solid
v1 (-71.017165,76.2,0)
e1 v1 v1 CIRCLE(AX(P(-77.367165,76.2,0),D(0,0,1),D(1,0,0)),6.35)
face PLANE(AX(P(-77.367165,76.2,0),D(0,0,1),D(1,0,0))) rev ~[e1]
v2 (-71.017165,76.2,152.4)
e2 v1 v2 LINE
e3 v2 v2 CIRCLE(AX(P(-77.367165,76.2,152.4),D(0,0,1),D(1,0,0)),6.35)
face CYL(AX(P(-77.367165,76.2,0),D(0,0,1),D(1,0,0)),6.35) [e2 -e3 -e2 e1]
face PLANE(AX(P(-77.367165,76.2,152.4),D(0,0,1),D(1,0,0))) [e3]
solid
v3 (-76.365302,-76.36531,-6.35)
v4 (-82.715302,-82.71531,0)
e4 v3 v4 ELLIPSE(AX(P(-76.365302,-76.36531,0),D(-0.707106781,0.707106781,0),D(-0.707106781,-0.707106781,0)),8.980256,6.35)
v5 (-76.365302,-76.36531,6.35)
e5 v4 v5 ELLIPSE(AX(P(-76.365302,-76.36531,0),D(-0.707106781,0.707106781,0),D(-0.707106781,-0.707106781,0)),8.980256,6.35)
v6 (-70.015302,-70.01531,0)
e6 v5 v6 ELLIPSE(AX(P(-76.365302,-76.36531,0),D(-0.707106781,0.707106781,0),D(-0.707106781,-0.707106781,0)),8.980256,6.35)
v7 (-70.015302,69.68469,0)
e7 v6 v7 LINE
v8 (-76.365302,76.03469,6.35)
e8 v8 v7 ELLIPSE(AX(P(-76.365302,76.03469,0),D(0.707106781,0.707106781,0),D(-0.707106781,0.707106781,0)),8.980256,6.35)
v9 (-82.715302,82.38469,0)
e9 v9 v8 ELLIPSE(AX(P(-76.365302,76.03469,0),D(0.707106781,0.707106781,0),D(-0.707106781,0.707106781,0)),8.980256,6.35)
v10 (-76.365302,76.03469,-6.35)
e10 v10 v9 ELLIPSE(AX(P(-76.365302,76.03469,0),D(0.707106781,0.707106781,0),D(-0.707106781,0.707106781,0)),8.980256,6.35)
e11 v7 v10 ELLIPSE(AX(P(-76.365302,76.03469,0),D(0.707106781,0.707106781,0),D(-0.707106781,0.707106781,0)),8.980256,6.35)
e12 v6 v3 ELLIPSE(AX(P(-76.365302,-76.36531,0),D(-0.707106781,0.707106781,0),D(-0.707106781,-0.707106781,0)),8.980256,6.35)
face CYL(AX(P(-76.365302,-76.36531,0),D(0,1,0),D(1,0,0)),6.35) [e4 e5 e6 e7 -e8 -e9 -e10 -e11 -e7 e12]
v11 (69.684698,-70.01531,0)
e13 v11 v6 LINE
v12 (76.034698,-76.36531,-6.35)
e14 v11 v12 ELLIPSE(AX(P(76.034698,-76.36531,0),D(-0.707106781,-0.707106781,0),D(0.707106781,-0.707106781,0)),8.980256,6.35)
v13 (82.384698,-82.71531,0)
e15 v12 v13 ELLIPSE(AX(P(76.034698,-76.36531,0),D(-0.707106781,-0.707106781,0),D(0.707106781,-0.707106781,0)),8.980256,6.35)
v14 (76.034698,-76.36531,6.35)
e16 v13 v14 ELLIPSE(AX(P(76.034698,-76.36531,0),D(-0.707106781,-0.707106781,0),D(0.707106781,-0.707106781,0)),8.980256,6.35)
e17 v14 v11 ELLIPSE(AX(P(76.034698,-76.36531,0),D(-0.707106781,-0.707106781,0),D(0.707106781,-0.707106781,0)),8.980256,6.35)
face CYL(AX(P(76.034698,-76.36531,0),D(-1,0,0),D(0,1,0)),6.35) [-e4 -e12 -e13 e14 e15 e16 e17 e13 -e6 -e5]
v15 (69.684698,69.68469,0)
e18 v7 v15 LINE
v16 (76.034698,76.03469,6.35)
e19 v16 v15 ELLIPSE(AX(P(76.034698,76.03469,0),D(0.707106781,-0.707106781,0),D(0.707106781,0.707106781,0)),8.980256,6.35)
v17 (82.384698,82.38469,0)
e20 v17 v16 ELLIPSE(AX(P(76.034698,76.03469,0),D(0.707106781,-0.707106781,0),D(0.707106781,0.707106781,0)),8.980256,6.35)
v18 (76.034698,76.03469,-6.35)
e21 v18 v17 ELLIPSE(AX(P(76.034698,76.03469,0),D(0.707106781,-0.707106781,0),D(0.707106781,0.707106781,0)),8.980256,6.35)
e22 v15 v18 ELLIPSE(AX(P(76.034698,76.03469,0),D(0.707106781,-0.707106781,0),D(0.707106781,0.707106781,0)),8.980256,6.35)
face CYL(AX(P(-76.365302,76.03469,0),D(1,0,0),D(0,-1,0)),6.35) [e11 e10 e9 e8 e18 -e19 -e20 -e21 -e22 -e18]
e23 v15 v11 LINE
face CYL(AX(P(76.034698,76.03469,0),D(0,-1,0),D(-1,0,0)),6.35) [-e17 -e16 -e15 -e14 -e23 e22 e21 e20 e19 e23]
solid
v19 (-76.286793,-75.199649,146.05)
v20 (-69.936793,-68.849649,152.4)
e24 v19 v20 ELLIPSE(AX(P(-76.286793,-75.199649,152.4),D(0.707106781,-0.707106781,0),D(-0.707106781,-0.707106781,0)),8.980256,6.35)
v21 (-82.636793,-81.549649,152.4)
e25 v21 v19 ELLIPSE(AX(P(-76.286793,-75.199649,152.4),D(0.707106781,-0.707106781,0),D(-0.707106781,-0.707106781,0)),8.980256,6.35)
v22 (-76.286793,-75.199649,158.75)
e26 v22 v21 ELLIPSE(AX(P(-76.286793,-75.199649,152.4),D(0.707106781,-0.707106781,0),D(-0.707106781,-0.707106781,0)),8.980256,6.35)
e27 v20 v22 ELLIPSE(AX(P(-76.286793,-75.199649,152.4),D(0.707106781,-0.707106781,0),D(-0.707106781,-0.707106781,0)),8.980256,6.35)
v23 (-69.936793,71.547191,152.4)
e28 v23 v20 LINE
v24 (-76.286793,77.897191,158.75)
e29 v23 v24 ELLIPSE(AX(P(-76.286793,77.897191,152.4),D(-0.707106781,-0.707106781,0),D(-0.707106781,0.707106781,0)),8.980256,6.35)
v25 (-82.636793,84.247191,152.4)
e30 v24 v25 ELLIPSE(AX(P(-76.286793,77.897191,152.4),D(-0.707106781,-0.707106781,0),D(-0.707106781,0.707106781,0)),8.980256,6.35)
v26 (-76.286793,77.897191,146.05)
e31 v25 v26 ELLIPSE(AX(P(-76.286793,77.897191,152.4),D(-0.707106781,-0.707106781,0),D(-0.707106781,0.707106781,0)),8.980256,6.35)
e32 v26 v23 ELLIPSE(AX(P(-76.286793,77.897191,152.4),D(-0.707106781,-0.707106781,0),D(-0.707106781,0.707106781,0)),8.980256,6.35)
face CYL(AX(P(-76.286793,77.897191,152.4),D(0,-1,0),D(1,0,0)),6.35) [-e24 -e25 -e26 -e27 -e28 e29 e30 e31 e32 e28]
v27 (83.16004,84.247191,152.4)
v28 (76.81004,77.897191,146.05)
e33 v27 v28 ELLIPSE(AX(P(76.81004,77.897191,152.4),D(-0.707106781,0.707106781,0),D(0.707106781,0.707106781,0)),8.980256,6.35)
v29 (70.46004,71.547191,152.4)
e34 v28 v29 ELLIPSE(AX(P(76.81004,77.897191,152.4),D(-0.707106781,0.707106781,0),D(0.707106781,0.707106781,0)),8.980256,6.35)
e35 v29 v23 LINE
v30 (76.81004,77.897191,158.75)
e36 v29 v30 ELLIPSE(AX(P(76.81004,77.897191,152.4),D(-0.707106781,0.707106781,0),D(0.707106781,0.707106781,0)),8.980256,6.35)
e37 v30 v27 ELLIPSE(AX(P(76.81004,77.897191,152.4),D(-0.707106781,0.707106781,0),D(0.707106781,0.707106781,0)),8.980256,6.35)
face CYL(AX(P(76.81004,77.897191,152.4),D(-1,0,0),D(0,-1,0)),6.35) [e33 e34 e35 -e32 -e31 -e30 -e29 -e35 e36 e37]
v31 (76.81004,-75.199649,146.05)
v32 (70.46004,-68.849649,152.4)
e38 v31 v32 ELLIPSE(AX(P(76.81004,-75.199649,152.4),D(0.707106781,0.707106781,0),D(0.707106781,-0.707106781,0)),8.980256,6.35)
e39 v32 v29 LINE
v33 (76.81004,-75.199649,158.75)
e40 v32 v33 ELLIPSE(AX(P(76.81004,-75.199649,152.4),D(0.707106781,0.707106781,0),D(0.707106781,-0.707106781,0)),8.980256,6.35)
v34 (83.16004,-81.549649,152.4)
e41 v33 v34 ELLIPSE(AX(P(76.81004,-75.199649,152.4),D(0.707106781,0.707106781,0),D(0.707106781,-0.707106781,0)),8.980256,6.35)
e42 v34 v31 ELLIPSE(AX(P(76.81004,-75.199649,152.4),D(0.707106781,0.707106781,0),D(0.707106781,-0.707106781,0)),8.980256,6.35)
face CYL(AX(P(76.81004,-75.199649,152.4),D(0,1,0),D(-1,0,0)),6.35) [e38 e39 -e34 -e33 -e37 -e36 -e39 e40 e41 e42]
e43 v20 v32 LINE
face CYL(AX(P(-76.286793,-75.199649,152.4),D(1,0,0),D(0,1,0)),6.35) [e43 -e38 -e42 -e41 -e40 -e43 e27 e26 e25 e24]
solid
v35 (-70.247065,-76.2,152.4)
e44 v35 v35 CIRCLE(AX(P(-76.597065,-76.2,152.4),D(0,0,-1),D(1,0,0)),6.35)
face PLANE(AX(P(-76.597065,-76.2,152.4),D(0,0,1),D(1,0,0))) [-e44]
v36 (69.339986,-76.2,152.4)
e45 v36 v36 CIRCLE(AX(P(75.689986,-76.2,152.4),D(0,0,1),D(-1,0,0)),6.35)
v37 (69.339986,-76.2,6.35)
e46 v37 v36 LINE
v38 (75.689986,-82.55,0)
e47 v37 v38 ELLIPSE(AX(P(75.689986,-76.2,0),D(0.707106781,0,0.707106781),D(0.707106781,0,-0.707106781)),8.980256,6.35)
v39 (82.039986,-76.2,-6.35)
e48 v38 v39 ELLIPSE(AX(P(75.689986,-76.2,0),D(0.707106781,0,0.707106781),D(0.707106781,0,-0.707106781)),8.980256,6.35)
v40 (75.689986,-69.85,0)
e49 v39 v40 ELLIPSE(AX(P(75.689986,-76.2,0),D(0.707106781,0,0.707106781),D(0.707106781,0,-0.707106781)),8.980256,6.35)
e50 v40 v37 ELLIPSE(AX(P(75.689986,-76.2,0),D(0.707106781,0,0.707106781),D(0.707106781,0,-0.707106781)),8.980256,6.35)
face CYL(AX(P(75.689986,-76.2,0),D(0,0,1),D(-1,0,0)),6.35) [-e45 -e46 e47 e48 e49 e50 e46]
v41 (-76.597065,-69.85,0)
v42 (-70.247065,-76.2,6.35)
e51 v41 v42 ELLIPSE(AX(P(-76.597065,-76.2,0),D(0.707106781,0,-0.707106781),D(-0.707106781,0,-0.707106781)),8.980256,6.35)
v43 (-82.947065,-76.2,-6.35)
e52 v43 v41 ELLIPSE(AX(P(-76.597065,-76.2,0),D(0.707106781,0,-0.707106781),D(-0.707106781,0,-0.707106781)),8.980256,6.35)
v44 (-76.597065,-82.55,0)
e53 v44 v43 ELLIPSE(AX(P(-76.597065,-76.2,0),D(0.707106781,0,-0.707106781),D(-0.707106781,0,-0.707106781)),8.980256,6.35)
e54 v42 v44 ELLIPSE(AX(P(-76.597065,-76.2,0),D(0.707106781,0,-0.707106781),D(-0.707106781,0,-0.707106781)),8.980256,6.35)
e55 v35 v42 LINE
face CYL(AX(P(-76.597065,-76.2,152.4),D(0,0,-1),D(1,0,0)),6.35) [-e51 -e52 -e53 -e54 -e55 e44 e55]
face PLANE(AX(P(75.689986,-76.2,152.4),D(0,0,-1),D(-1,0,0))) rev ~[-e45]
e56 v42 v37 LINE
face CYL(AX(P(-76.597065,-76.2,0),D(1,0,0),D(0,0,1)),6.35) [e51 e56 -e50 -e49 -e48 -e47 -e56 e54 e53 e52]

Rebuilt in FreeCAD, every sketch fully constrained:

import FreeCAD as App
import Part
import Sketcher
from FreeCAD import Vector
Q = App.Units.Quantity

doc = App.newDocument("Part")
params = doc.addObject("Spreadsheet::Sheet", "Params")
for row, (alias, value) in enumerate([
    ("sketch1_diameter", "0.5 in"),
    ("sketch2_width", "6 in"),
    ("sketch3_diameter", "0.5 in"),
    ("sketch4_height", "6 in"),
    ("sketch5_diameter", "0.5 in"),
    ("sketch6_height", "6 in"),
    ("sketch7_diameter", "0.5 in"),
], start=1):
    params.set(f"A{row}", alias)
    params.set(f"B{row}", "=" + value)
    params.setAlias(f"B{row}", alias)

body = doc.addObject("PartDesign::Body", "Body")

# Sketch on XZ plane
sketch1 = doc.addObject("Sketcher::SketchObject", "Sketch")
body.addObject(sketch1)
sketch1.AttachmentSupport = (doc.XZ_Plane, [""])
sketch1.MapMode = "FlatFace"
sketch1.addGeometry(Part.Circle(Vector(-76.365302, 0, 0), Vector(0, 0, 1), 6.35), False)
sketch1.addConstraint([
    Sketcher.Constraint("PointOnObject", 0, 3, -1),
    Sketcher.Constraint("Diameter", 0, Q("0.5 in")),
    Sketcher.Constraint("DistanceX", 0, 3, -1, 1, 76.365302),
])
sketch1.setExpression("Constraints[1]", "Params.sketch1_diameter")

# Sketch on XY plane
sketch2 = doc.addObject("Sketcher::SketchObject", "Sketch001")
body.addObject(sketch2)
sketch2.AttachmentSupport = (doc.XY_Plane, [""])
sketch2.MapMode = "FlatFace"
sketch2.addGeometry([
    Part.LineSegment(Vector(-76.365302, 76.03469, 0), Vector(76.034698, 76.03469, 0)),
    Part.LineSegment(Vector(76.034698, 76.03469, 0), Vector(76.034698, -76.36531, 0)),
    Part.LineSegment(Vector(76.034698, -76.36531, 0), Vector(-76.365302, -76.36531, 0)),
    Part.LineSegment(Vector(-76.365302, -76.36531, 0), Vector(-76.365302, 76.03469, 0)),
], False)
sketch2.addConstraint([
    Sketcher.Constraint("Coincident", 0, 2, 1, 1),
    Sketcher.Constraint("Coincident", 1, 2, 2, 1),
    Sketcher.Constraint("Coincident", 2, 2, 3, 1),
    Sketcher.Constraint("Coincident", 3, 2, 0, 1),
    Sketcher.Constraint("Horizontal", 0),
    Sketcher.Constraint("Vertical", 1),
    Sketcher.Constraint("Horizontal", 2),
    Sketcher.Constraint("Vertical", 3),
    Sketcher.Constraint("Equal", 2, 1),
    Sketcher.Constraint("DistanceX", 0, 1, 0, 2, Q("6 in")),
    Sketcher.Constraint("DistanceY", -1, 1, 0, 2, 76.03469),
    Sketcher.Constraint("DistanceX", -1, 1, 0, 2, 76.034698),
])
sketch2.setExpression("Constraints[9]", "Params.sketch2_width")
doc.recompute()

additivepipe = doc.addObject("PartDesign::AdditivePipe", "AdditivePipe")
body.addObject(additivepipe)
additivepipe.Profile = sketch1
additivepipe.Spine = (sketch2, ["Edge1", "Edge2", "Edge3", "Edge4"])
additivepipe.Transition = "Right corner"
body2 = doc.addObject("PartDesign::Body", "Body001")

# Sketch on XY plane
sketch3 = doc.addObject("Sketcher::SketchObject", "Sketch002")
body2.addObject(sketch3)
sketch3.AttachmentSupport = (doc.getObject("XY_Plane001"), [""])
sketch3.MapMode = "FlatFace"
sketch3.addGeometry(Part.Circle(Vector(-77.367165, 76.2, 0), Vector(0, 0, 1), 6.35), False)
sketch3.addConstraint([
    Sketcher.Constraint("Diameter", 0, Q("0.5 in")),
    Sketcher.Constraint("DistanceY", -1, 1, 0, 3, Q("3 in")),
    Sketcher.Constraint("DistanceX", 0, 3, -1, 1, 77.367165),
])
sketch3.setExpression("Constraints[0]", "Params.sketch3_diameter")

# Sketch on XZ plane
sketch4 = doc.addObject("Sketcher::SketchObject", "Sketch003")
body2.addObject(sketch4)
sketch4.AttachmentSupport = (doc.getObject("XZ_Plane001"), [""])
sketch4.MapMode = "FlatFace"
sketch4.AttachmentOffset = App.Placement(Vector(0, 0, -3 * 25.4), App.Rotation())
sketch4.addGeometry(Part.LineSegment(Vector(-77.367165, 0, 0), Vector(-77.367165, 152.4, 0)), False)
sketch4.addConstraint([
    Sketcher.Constraint("Vertical", 0),
    Sketcher.Constraint("PointOnObject", 0, 1, -1),
    Sketcher.Constraint("DistanceY", 0, 1, 0, 2, Q("6 in")),
    Sketcher.Constraint("DistanceX", 0, 1, -1, 1, 77.367165),
])
sketch4.setExpression("Constraints[2]", "Params.sketch4_height")
doc.recompute()

additivepipe2 = doc.addObject("PartDesign::AdditivePipe", "AdditivePipe001")
body2.addObject(additivepipe2)
additivepipe2.Profile = sketch3
additivepipe2.Spine = (sketch4, ["Edge1"])
body3 = doc.addObject("PartDesign::Body", "Body002")

# Sketch on XY plane
sketch5 = doc.addObject("Sketcher::SketchObject", "Sketch004")
body3.addObject(sketch5)
sketch5.AttachmentSupport = (doc.getObject("XY_Plane002"), [""])
sketch5.MapMode = "FlatFace"
sketch5.addGeometry(Part.Circle(Vector(-76.597065, -76.2, 0), Vector(0, 0, 1), 6.35), False)
sketch5.addConstraint([
    Sketcher.Constraint("Diameter", 0, Q("0.5 in")),
    Sketcher.Constraint("DistanceY", 0, 3, -1, 1, Q("3 in")),
    Sketcher.Constraint("DistanceX", 0, 3, -1, 1, 76.597065),
])
sketch5.setExpression("Constraints[0]", "Params.sketch5_diameter")

# Sketch on XZ plane
sketch6 = doc.addObject("Sketcher::SketchObject", "Sketch005")
body3.addObject(sketch6)
sketch6.AttachmentSupport = (doc.getObject("XZ_Plane002"), [""])
sketch6.MapMode = "FlatFace"
sketch6.AttachmentOffset = App.Placement(Vector(0, 0, 3 * 25.4), App.Rotation())
sketch6.addGeometry([
    Part.LineSegment(Vector(-76.597065, 152.4, 0), Vector(-76.597065, 0, 0)),
    Part.LineSegment(Vector(-76.597065, 0, 0), Vector(75.689986, 0, 0)),
    Part.LineSegment(Vector(75.689986, 0, 0), Vector(75.689986, 152.4, 0)),
], False)
sketch6.addConstraint([
    Sketcher.Constraint("Coincident", 0, 2, 1, 1),
    Sketcher.Constraint("Coincident", 1, 2, 2, 1),
    Sketcher.Constraint("Vertical", 0),
    Sketcher.Constraint("Horizontal", 1),
    Sketcher.Constraint("Vertical", 2),
    Sketcher.Constraint("PointOnObject", 0, 2, -1),
    Sketcher.Constraint("Horizontal", 0, 1, 2, 2),
    Sketcher.Constraint("DistanceY", 0, 2, 0, 1, Q("6 in")),
    Sketcher.Constraint("DistanceX", 1, 1, 1, 2, 152.287051),
    Sketcher.Constraint("DistanceX", 0, 1, -1, 1, 76.597065),
])
sketch6.setExpression("Constraints[7]", "Params.sketch6_height")
doc.recompute()

additivepipe3 = doc.addObject("PartDesign::AdditivePipe", "AdditivePipe002")
body3.addObject(additivepipe3)
additivepipe3.Profile = sketch5
additivepipe3.Spine = (sketch6, ["Edge1", "Edge2", "Edge3"])
additivepipe3.Transition = "Right corner"
body4 = doc.addObject("PartDesign::Body", "Body003")

# Sketch on XZ plane
sketch7 = doc.addObject("Sketcher::SketchObject", "Sketch006")
body4.addObject(sketch7)
sketch7.AttachmentSupport = (doc.getObject("XZ_Plane003"), [""])
sketch7.MapMode = "FlatFace"
sketch7.AttachmentOffset = App.Placement(Vector(0, 0, -3 * 25.4), App.Rotation())
sketch7.addGeometry(Part.Circle(Vector(-76.286793, 152.4, 0), Vector(0, 0, 1), 6.35), False)
sketch7.addConstraint([
    Sketcher.Constraint("Diameter", 0, Q("0.5 in")),
    Sketcher.Constraint("DistanceY", -1, 1, 0, 3, Q("6 in")),
    Sketcher.Constraint("DistanceX", 0, 3, -1, 1, 76.286793),
])
sketch7.setExpression("Constraints[0]", "Params.sketch7_diameter")

# Sketch on XY plane
sketch8 = doc.addObject("Sketcher::SketchObject", "Sketch007")
body4.addObject(sketch8)
sketch8.AttachmentSupport = (doc.getObject("XY_Plane003"), [""])
sketch8.MapMode = "FlatFace"
sketch8.AttachmentOffset = App.Placement(Vector(0, 0, 6 * 25.4), App.Rotation())
sketch8.addGeometry([
    Part.LineSegment(Vector(-76.286793, -75.199649, 0), Vector(76.81004, -75.199649, 0)),
    Part.LineSegment(Vector(76.81004, -75.199649, 0), Vector(76.81004, 77.897191, 0)),
    Part.LineSegment(Vector(76.81004, 77.897191, 0), Vector(-76.286793, 77.897191, 0)),
    Part.LineSegment(Vector(-76.286793, 77.897191, 0), Vector(-76.286793, -75.199649, 0)),
], False)
sketch8.addConstraint([
    Sketcher.Constraint("Coincident", 0, 2, 1, 1),
    Sketcher.Constraint("Coincident", 1, 2, 2, 1),
    Sketcher.Constraint("Coincident", 2, 2, 3, 1),
    Sketcher.Constraint("Coincident", 3, 2, 0, 1),
    Sketcher.Constraint("Horizontal", 0),
    Sketcher.Constraint("Vertical", 1),
    Sketcher.Constraint("Horizontal", 2),
    Sketcher.Constraint("Vertical", 3),
    Sketcher.Constraint("DistanceY", 1, 1, 1, 2, 153.09684),
    Sketcher.Constraint("DistanceX", 0, 1, 0, 2, 153.096832),
    Sketcher.Constraint("DistanceX", -1, 1, 0, 2, 76.81004),
    Sketcher.Constraint("DistanceY", 0, 2, -1, 1, 75.199649),
])
doc.recompute()

additivepipe4 = doc.addObject("PartDesign::AdditivePipe", "AdditivePipe003")
body4.addObject(additivepipe4)
additivepipe4.Profile = sketch7
additivepipe4.Spine = (sketch8, ["Edge1", "Edge2", "Edge3", "Edge4"])
additivepipe4.Transition = "Right corner"

doc.recompute()
